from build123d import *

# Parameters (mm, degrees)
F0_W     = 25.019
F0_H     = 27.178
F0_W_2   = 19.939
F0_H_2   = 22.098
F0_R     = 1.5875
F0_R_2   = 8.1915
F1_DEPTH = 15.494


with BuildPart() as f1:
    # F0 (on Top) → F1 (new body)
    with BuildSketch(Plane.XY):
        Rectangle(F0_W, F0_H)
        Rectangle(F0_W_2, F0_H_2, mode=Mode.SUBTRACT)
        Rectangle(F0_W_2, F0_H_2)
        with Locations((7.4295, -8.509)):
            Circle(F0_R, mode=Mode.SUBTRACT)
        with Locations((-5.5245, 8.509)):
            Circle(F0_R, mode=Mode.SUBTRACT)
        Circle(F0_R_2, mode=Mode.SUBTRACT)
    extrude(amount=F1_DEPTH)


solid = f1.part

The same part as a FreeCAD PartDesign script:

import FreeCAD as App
import Part
import Sketcher
Q = App.Units.Quantity


def add_polygon(sketch, points):
    """Adds a closed chain of lines whose ends are joined by coincident constraints."""
    first, n = sketch.GeometryCount, len(points)
    for a, b in zip(points, points[1:] + points[:1]):
        sketch.addGeometry(Part.LineSegment(App.Vector(*a, 0), App.Vector(*b, 0)), False)
    for i in range(n):
        sketch.addConstraint(Sketcher.Constraint("Coincident", first + i, 2, first + (i + 1) % n, 1))

doc = App.newDocument("Part")
body = doc.addObject("PartDesign::Body", "Body")

# Sketch on XY plane
sketch1 = body.newObject("Sketcher::SketchObject", "Sketch")
sketch1.AttachmentSupport = (doc.getObject("XY_Plane"), [""])
sketch1.MapMode = "FlatFace"
add_polygon(sketch1, [(-12.5, 13.6), (-12.5, -13.6), (12.5, -13.6), (12.5, 13.6)])  # lines 0-3
sketch1.addGeometry(Part.Circle(App.Vector(0, 0, 0), App.Vector(0, 0, 1), 8.2), False)  # 4
sketch1.addGeometry(Part.Circle(App.Vector(7.4, -8.5, 0), App.Vector(0, 0, 1), 1.6), False)  # 5
sketch1.addGeometry(Part.Circle(App.Vector(-5.5, 8.5, 0), App.Vector(0, 0, 1), 1.6), False)  # 6
sketch1.addConstraint([
    Sketcher.Constraint("Vertical", 0),
    Sketcher.Constraint("Horizontal", 1),
    Sketcher.Constraint("Vertical", 2),
    Sketcher.Constraint("Horizontal", 3),
    Sketcher.Constraint("Coincident", 4, 3, -1, 1),
    Sketcher.Constraint("Equal", 5, 6),
    Sketcher.Constraint("Symmetric", 0, 2, 2, 2, -1, 1),
    Sketcher.Constraint("Diameter", 4, Q("0.645 in")),
    Sketcher.Constraint("Diameter", 5, Q("0.125 in")),
    Sketcher.Constraint("DistanceY", 0, 2, 0, 1, Q("1.07 in")),
    Sketcher.Constraint("DistanceY", 0, 2, 5, 3, Q("0.2 in")),
    Sketcher.Constraint("DistanceX", 5, 3, 1, 2, Q("0.2 in")),
    Sketcher.Constraint("DistanceY", 6, 3, 2, 2, Q("0.2 in")),
    Sketcher.Constraint("DistanceX", 1, 1, 1, 2, Q("0.985 in")),
    Sketcher.Constraint("DistanceX", 6, 3, 5, 3, Q("0.51 in")),
])
pad1 = body.newObject("PartDesign::Pad", "Pad")
pad1.Profile = sketch1
pad1.Length = Q("0.61 in")

doc.recompute()
